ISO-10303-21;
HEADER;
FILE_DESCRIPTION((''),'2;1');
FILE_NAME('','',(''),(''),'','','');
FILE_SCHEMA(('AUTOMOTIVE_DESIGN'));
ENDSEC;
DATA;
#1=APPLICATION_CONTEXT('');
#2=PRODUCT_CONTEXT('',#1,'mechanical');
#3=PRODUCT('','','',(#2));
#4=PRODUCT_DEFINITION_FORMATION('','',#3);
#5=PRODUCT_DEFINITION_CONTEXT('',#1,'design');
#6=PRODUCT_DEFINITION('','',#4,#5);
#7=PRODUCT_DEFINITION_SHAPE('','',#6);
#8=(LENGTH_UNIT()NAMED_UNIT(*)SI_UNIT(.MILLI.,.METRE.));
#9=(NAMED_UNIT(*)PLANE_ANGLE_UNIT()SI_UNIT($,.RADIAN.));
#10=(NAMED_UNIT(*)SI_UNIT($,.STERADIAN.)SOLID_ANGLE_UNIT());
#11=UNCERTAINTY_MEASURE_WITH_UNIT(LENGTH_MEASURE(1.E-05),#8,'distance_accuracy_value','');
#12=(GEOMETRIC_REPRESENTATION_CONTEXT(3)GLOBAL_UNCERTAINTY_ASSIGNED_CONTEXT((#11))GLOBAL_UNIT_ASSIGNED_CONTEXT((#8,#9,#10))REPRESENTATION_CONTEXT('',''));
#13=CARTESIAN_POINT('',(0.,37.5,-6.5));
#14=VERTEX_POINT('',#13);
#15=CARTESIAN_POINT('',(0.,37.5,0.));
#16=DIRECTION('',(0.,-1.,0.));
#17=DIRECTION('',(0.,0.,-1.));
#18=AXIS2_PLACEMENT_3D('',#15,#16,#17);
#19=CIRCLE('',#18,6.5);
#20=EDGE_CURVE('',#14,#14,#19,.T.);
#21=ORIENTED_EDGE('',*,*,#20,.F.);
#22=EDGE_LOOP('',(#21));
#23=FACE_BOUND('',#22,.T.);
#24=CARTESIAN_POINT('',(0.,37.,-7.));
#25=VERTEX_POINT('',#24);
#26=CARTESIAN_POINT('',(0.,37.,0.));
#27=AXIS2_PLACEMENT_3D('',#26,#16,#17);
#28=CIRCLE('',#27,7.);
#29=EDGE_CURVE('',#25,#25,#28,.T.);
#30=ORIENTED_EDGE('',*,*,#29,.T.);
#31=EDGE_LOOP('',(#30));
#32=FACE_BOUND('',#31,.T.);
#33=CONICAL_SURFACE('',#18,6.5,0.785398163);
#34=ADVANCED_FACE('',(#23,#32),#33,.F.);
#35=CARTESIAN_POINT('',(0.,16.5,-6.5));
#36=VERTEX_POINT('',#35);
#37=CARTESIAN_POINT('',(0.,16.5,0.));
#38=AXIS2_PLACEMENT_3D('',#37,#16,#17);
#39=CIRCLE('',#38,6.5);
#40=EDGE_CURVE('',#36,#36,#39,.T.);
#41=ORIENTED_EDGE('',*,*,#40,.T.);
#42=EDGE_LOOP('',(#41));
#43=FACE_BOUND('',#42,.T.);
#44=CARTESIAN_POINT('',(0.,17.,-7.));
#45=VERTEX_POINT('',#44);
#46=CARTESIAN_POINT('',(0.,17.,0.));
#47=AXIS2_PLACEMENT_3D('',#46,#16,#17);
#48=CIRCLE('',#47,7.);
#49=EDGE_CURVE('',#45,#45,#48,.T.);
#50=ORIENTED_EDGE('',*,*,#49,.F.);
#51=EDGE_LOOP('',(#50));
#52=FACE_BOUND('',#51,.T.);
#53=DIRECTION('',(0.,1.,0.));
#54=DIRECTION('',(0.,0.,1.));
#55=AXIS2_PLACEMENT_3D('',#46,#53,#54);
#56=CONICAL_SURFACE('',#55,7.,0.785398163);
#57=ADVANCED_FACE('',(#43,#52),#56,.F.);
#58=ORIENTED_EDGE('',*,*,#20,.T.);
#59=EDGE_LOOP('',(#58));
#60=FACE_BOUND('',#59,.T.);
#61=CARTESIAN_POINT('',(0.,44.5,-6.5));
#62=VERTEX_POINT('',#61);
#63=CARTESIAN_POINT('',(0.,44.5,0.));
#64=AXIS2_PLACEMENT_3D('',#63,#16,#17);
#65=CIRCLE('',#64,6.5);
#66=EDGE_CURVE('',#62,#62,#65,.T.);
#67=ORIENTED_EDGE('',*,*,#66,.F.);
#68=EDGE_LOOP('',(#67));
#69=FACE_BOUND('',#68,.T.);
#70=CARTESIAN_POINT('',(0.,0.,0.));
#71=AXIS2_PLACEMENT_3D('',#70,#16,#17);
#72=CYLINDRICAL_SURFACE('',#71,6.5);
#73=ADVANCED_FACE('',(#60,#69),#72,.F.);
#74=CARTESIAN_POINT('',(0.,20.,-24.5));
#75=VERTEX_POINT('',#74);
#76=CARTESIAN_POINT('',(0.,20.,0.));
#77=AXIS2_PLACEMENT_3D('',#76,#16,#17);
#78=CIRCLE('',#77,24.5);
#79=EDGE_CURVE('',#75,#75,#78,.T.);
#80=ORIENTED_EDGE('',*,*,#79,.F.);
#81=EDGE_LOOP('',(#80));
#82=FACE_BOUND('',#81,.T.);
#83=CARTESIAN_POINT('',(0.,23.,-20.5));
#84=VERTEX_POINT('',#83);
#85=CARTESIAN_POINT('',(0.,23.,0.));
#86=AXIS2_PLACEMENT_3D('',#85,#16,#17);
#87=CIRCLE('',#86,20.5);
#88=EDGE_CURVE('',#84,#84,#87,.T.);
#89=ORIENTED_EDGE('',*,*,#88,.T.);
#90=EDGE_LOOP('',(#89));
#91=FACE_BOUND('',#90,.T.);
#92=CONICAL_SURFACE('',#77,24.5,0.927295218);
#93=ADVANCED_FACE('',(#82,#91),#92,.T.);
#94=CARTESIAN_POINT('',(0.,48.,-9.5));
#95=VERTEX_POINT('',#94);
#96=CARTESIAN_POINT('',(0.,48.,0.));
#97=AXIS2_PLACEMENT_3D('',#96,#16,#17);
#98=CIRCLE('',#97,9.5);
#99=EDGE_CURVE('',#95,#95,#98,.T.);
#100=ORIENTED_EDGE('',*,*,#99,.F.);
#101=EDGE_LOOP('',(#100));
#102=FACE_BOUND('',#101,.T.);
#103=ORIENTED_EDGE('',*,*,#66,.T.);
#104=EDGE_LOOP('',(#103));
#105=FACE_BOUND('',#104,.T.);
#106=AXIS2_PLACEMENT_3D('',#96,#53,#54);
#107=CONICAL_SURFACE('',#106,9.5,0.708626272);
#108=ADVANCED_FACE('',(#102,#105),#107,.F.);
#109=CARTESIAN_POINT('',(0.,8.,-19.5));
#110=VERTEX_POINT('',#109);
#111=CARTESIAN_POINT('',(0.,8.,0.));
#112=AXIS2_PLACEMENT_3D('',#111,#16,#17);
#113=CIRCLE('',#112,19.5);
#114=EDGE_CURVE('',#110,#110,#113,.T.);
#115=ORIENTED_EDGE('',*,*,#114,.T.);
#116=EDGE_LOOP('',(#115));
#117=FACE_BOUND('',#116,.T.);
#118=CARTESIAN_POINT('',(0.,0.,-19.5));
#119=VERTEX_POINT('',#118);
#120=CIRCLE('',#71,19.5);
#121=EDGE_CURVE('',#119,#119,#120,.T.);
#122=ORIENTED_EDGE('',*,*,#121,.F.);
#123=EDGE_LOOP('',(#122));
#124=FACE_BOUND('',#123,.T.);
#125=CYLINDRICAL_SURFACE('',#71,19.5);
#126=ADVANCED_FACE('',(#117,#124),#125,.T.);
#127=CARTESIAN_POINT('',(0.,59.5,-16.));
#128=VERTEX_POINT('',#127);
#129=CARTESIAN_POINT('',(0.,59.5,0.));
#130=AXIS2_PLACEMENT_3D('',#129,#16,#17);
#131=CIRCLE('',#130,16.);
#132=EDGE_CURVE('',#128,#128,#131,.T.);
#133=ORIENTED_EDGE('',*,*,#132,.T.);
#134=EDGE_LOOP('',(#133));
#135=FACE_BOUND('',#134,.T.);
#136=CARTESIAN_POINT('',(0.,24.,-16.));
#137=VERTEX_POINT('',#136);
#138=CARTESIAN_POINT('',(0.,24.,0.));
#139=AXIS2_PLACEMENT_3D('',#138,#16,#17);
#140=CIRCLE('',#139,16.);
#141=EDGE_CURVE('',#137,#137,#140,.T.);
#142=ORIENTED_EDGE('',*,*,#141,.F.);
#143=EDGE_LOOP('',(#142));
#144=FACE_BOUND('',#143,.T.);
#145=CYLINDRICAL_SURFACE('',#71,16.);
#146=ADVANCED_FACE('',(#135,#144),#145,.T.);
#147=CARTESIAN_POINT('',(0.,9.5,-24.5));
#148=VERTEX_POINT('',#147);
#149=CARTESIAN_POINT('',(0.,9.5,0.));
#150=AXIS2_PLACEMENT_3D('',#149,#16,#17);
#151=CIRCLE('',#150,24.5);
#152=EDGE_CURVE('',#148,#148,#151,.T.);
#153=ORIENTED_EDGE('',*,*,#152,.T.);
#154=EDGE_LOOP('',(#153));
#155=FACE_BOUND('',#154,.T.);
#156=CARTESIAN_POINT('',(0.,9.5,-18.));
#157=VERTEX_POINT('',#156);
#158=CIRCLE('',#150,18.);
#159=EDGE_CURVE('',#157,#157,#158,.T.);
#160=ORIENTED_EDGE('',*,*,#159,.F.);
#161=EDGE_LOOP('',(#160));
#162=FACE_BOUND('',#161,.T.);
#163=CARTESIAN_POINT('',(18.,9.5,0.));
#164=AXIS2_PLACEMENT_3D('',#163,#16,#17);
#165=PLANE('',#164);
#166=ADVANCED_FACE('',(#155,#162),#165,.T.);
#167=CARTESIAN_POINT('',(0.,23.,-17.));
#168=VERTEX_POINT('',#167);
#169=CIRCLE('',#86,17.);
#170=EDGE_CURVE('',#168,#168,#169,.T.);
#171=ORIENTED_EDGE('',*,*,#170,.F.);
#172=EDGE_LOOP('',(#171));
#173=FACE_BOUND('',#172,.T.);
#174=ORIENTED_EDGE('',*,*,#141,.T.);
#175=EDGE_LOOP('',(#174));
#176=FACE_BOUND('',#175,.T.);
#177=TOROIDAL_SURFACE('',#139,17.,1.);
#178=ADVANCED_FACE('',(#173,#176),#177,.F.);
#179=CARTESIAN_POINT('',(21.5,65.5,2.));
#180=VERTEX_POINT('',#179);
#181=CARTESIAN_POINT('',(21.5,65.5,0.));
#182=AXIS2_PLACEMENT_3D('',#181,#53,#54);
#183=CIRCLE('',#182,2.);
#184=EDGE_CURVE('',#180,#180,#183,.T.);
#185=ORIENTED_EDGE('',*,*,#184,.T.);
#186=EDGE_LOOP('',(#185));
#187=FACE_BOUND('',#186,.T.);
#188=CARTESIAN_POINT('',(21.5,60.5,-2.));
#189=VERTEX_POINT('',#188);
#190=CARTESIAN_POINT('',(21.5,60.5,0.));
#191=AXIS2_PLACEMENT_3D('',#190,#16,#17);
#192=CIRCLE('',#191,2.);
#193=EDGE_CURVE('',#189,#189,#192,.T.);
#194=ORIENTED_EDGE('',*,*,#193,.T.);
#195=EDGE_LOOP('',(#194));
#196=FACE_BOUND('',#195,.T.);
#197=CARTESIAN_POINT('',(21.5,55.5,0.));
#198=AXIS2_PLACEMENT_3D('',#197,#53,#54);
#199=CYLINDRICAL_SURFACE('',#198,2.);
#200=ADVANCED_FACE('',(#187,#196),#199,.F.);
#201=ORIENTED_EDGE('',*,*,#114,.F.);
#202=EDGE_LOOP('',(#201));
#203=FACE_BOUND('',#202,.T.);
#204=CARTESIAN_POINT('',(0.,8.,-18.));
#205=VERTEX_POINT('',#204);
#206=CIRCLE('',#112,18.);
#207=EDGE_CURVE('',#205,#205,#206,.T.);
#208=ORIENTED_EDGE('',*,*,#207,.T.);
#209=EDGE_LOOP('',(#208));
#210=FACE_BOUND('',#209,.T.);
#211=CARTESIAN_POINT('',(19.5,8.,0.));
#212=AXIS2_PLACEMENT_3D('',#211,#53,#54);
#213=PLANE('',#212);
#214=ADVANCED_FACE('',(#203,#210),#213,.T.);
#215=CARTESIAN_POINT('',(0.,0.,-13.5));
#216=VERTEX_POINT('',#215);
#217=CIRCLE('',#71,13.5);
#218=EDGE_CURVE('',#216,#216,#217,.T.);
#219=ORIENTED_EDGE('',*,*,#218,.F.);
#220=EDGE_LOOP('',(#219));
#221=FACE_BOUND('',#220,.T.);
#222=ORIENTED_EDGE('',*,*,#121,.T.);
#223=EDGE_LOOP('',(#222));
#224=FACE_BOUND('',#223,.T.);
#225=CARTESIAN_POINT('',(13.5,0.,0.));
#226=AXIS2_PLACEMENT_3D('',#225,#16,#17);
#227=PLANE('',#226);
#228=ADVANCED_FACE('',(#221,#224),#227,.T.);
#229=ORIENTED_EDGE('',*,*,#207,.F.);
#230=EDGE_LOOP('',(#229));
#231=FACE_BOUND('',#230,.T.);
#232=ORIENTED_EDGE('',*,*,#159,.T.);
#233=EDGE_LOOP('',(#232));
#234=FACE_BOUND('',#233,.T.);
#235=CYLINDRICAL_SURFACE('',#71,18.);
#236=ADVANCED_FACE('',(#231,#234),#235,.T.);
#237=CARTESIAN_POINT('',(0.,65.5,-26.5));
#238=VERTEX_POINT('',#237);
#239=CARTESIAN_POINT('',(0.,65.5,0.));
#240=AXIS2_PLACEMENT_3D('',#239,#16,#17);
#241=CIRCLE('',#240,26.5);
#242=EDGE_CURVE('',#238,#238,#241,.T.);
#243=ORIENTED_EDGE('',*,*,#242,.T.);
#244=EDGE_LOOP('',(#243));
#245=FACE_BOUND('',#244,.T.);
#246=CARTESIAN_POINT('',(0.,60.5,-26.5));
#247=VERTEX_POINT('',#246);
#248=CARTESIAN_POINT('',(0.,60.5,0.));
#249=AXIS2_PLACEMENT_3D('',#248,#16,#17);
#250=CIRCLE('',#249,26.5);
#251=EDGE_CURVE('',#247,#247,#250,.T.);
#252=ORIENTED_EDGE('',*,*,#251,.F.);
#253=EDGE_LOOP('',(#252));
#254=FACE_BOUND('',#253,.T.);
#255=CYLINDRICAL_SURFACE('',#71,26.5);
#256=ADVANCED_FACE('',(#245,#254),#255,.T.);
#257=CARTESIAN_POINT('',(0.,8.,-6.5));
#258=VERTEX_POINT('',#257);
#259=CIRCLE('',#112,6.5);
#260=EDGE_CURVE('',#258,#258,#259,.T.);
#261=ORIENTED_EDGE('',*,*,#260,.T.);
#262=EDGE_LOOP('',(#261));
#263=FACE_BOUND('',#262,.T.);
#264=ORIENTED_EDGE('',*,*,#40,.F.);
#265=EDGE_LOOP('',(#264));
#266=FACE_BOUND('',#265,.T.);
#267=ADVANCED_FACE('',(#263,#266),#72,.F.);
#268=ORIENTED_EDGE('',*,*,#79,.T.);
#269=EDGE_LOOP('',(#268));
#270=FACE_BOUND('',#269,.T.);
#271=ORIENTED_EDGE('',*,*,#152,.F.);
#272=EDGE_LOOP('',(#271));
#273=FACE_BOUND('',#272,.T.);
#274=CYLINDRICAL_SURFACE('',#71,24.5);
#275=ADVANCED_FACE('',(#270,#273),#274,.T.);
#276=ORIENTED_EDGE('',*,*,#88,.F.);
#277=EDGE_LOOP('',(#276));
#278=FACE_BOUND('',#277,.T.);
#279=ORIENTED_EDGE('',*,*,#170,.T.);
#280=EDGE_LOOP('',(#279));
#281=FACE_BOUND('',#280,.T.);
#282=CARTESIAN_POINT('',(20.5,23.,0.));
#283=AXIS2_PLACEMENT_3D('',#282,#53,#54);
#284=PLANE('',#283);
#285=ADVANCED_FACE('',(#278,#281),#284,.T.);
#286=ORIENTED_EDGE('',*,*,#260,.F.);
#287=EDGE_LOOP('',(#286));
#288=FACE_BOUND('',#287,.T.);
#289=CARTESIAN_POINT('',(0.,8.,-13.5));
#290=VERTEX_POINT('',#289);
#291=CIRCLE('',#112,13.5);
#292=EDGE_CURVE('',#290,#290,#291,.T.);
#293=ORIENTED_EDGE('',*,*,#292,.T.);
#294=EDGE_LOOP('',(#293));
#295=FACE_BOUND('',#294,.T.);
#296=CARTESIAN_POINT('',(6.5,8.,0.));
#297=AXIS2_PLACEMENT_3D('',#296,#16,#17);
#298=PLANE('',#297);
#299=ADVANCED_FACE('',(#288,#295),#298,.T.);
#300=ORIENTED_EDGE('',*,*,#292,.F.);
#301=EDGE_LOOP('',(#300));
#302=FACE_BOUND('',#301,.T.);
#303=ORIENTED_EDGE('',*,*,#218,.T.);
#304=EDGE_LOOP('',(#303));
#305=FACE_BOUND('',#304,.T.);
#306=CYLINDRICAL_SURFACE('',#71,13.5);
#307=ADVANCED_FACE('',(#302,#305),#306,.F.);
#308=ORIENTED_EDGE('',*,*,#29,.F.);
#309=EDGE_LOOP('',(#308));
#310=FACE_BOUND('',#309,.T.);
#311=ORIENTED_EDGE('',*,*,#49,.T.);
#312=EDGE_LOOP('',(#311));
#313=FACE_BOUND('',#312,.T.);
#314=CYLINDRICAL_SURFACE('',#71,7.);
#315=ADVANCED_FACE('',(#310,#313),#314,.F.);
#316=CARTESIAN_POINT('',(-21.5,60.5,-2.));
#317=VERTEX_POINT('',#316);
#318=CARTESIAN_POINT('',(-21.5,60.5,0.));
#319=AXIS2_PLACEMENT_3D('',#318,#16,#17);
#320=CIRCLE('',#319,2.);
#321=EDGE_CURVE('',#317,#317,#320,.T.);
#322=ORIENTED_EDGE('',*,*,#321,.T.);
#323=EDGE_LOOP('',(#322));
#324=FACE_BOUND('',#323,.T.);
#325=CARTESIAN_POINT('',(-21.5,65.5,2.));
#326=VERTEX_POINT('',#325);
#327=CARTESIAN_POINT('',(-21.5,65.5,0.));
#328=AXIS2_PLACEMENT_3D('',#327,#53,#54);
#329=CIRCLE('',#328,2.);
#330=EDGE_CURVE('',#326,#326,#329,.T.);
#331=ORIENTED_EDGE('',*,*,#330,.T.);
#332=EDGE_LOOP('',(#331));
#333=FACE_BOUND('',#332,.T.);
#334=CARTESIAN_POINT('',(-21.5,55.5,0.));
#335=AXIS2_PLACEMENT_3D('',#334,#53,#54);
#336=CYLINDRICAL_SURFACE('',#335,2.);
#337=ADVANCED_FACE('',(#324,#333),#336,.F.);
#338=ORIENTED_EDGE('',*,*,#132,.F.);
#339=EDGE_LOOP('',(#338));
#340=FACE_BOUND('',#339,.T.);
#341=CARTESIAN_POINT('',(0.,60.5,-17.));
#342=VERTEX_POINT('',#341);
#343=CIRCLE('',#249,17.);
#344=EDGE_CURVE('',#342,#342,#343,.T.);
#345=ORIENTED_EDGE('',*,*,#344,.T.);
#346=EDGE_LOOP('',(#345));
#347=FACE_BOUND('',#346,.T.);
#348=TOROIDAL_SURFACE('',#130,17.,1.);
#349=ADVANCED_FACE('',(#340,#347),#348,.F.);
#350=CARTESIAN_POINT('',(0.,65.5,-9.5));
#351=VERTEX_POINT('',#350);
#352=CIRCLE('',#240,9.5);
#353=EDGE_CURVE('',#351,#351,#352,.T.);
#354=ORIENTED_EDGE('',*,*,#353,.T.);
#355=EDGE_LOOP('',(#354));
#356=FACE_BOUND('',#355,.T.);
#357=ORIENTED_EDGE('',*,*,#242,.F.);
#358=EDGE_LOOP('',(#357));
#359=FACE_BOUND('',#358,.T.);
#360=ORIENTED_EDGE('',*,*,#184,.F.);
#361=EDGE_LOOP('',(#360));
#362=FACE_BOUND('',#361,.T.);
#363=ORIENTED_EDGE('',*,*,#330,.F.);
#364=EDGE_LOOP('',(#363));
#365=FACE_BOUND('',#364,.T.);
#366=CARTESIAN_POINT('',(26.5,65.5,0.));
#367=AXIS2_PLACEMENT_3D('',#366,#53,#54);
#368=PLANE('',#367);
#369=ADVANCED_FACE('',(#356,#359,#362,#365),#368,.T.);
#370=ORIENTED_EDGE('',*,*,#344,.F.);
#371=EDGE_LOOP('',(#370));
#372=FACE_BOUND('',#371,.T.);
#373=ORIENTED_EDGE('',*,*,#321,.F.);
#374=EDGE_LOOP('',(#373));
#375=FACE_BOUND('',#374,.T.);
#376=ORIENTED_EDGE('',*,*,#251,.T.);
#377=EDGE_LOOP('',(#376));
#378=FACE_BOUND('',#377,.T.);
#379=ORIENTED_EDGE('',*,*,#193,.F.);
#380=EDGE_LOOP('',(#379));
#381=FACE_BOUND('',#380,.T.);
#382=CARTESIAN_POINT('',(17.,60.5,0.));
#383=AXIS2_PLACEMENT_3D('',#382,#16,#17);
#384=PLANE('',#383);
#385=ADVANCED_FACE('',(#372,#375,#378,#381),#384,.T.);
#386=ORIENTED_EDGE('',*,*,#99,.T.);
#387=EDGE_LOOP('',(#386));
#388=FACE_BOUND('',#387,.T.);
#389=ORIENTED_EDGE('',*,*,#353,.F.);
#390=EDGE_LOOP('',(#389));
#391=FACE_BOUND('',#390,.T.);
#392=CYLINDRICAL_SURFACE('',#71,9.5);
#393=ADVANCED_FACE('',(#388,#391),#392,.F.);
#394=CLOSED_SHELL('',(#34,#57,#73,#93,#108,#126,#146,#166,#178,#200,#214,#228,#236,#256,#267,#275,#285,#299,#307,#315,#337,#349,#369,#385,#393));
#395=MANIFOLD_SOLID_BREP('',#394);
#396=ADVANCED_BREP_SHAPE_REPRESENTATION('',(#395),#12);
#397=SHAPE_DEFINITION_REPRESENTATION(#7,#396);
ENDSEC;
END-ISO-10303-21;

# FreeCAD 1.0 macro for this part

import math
import FreeCAD as App
import Part
import Sketcher
from FreeCAD import Vector
Q = App.Units.Quantity

doc = App.newDocument("Part")
body = doc.addObject("PartDesign::Body", "Body")

sketch1 = body.newObject("Sketcher::SketchObject", "Sketch")
sketch1.AttachmentSupport = (doc.getObject("XY_Plane"), [""])
sketch1.MapMode = "FlatFace"
sketch1.addGeometry(Part.LineSegment(Vector(13.5, 0, 0), Vector(19.5, 0, 0)), False)
sketch1.addGeometry(Part.LineSegment(Vector(19.5, 0, 0), Vector(19.5, 8, 0)), False)
sketch1.addGeometry(Part.LineSegment(Vector(19.5, 8, 0), Vector(18, 8, 0)), False)
sketch1.addGeometry(Part.LineSegment(Vector(18, 8, 0), Vector(18, 9.5, 0)), False)
sketch1.addGeometry(Part.LineSegment(Vector(18, 9.5, 0), Vector(24.5, 9.5, 0)), False)
sketch1.addGeometry(Part.LineSegment(Vector(24.5, 9.5, 0), Vector(24.5, 20, 0)), False)
sketch1.addGeometry(Part.LineSegment(Vector(24.5, 20, 0), Vector(20.5, 23, 0)), False)
sketch1.addGeometry(Part.LineSegment(Vector(20.5, 23, 0), Vector(17, 23, 0)), False)
sketch1.addGeometry(Part.ArcOfCircle(Part.Circle(Vector(17, 24, 0), Vector(0, 0, 1), 1), math.radians(-180), math.radians(-90)), False)
sketch1.addGeometry(Part.LineSegment(Vector(16, 24, 0), Vector(16, 59.5, 0)), False)
sketch1.addGeometry(Part.ArcOfCircle(Part.Circle(Vector(17, 59.5, 0), Vector(0, 0, 1), 1), math.radians(90), math.radians(180)), False)
sketch1.addGeometry(Part.LineSegment(Vector(17, 60.5, 0), Vector(26.5, 60.5, 0)), False)
sketch1.addGeometry(Part.LineSegment(Vector(26.5, 60.5, 0), Vector(26.5, 65.5, 0)), False)
sketch1.addGeometry(Part.LineSegment(Vector(26.5, 65.5, 0), Vector(9.5, 65.5, 0)), False)
sketch1.addGeometry(Part.LineSegment(Vector(9.5, 65.5, 0), Vector(9.5, 48, 0)), False)
sketch1.addGeometry(Part.LineSegment(Vector(9.5, 48, 0), Vector(6.5, 44.5, 0)), False)
sketch1.addGeometry(Part.LineSegment(Vector(6.5, 44.5, 0), Vector(6.5, 37.5, 0)), False)
sketch1.addGeometry(Part.LineSegment(Vector(6.5, 37.5, 0), Vector(7, 37, 0)), False)
sketch1.addGeometry(Part.LineSegment(Vector(7, 37, 0), Vector(7, 17, 0)), False)
sketch1.addGeometry(Part.LineSegment(Vector(7, 17, 0), Vector(6.5, 16.5, 0)), False)
sketch1.addGeometry(Part.LineSegment(Vector(6.5, 16.5, 0), Vector(6.5, 8, 0)), False)
sketch1.addGeometry(Part.LineSegment(Vector(6.5, 8, 0), Vector(13.5, 8, 0)), False)
sketch1.addGeometry(Part.LineSegment(Vector(13.5, 8, 0), Vector(13.5, 0, 0)), False)
sketch1.addConstraint(Sketcher.Constraint("Coincident", 0, 2, 1, 1))
sketch1.addConstraint(Sketcher.Constraint("Coincident", 1, 2, 2, 1))
sketch1.addConstraint(Sketcher.Constraint("Coincident", 2, 2, 3, 1))
sketch1.addConstraint(Sketcher.Constraint("Coincident", 3, 2, 4, 1))
sketch1.addConstraint(Sketcher.Constraint("Coincident", 4, 2, 5, 1))
sketch1.addConstraint(Sketcher.Constraint("Coincident", 5, 2, 6, 1))
sketch1.addConstraint(Sketcher.Constraint("Coincident", 6, 2, 7, 1))
sketch1.addConstraint(Sketcher.Constraint("Tangent", 7, 2, 8, 2))
sketch1.addConstraint(Sketcher.Constraint("Tangent", 8, 1, 9, 1))
sketch1.addConstraint(Sketcher.Constraint("Tangent", 9, 2, 10, 2))
sketch1.addConstraint(Sketcher.Constraint("Tangent", 10, 1, 11, 1))
sketch1.addConstraint(Sketcher.Constraint("Coincident", 11, 2, 12, 1))
sketch1.addConstraint(Sketcher.Constraint("Coincident", 12, 2, 13, 1))
sketch1.addConstraint(Sketcher.Constraint("Coincident", 13, 2, 14, 1))
sketch1.addConstraint(Sketcher.Constraint("Coincident", 14, 2, 15, 1))
sketch1.addConstraint(Sketcher.Constraint("Coincident", 15, 2, 16, 1))
sketch1.addConstraint(Sketcher.Constraint("Coincident", 16, 2, 17, 1))
sketch1.addConstraint(Sketcher.Constraint("Coincident", 17, 2, 18, 1))
sketch1.addConstraint(Sketcher.Constraint("Coincident", 18, 2, 19, 1))
sketch1.addConstraint(Sketcher.Constraint("Coincident", 19, 2, 20, 1))
sketch1.addConstraint(Sketcher.Constraint("Coincident", 20, 2, 21, 1))
sketch1.addConstraint(Sketcher.Constraint("Coincident", 21, 2, 22, 1))
sketch1.addConstraint(Sketcher.Constraint("Coincident", 22, 2, 0, 1))
sketch1.addConstraint(Sketcher.Constraint("Horizontal", 0))
sketch1.addConstraint(Sketcher.Constraint("Vertical", 1))
sketch1.addConstraint(Sketcher.Constraint("Horizontal", 2))
sketch1.addConstraint(Sketcher.Constraint("Vertical", 3))
sketch1.addConstraint(Sketcher.Constraint("Horizontal", 4))
sketch1.addConstraint(Sketcher.Constraint("Vertical", 5))
sketch1.addConstraint(Sketcher.Constraint("Horizontal", 7))
sketch1.addConstraint(Sketcher.Constraint("Vertical", 9))
sketch1.addConstraint(Sketcher.Constraint("Horizontal", 11))
sketch1.addConstraint(Sketcher.Constraint("Vertical", 12))
sketch1.addConstraint(Sketcher.Constraint("Horizontal", 13))
sketch1.addConstraint(Sketcher.Constraint("Vertical", 14))
sketch1.addConstraint(Sketcher.Constraint("Vertical", 16))
sketch1.addConstraint(Sketcher.Constraint("Vertical", 18))
sketch1.addConstraint(Sketcher.Constraint("Vertical", 20))
sketch1.addConstraint(Sketcher.Constraint("Horizontal", 21))
sketch1.addConstraint(Sketcher.Constraint("Vertical", 22))
sketch1.addConstraint(Sketcher.Constraint("Equal", 8, 10))
sketch1.addConstraint(Sketcher.Constraint("PointOnObject", 0, 2, -1))
sketch1.addConstraint(Sketcher.Constraint("Perpendicular", 17, 19))
sketch1.addConstraint(Sketcher.Constraint("Horizontal", 2, 2, 20, 2))
sketch1.addConstraint(Sketcher.Constraint("Vertical", 16, 2, 19, 2))
sketch1.addConstraint(Sketcher.Constraint("Equal", 2, 3))
sketch1.addConstraint(Sketcher.Constraint("Equal", 21, 16))
sketch1.addConstraint(Sketcher.Constraint("Equal", 17, 19))
sketch1.addConstraint(Sketcher.Constraint("Radius", 8, Q("1 mm")))
sketch1.addConstraint(Sketcher.Constraint("DistanceX", 0, 1, 0, 2, Q("6 mm")))
sketch1.addConstraint(Sketcher.Constraint("DistanceX", 13, 2, 13, 1, Q("17 mm")))
sketch1.addConstraint(Sketcher.Constraint("DistanceX", 21, 1, 21, 2, Q("7 mm")))
sketch1.addConstraint(Sketcher.Constraint("DistanceY", 1, 1, 1, 2, Q("8 mm")))
sketch1.addConstraint(Sketcher.Constraint("DistanceY", 12, 1, 12, 2, Q("5 mm")))
sketch1.addConstraint(Sketcher.Constraint("DistanceY", 18, 2, 18, 1, Q("20 mm")))
sketch1.addConstraint(Sketcher.Constraint("Distance", 6, Q("5 mm")))
sketch1.addConstraint(Sketcher.Constraint("DistanceX", 2, 2, 2, 1, Q("1.5 mm")))
sketch1.addConstraint(Sketcher.Constraint("DistanceX", 4, 1, 4, 2, Q("6.5 mm")))
sketch1.addConstraint(Sketcher.Constraint("DistanceX", 7, 2, 7, 1, Q("3.5 mm")))
sketch1.addConstraint(Sketcher.Constraint("DistanceX", 11, 1, 11, 2, Q("9.5 mm")))
sketch1.addConstraint(Sketcher.Constraint("DistanceY", 5, 1, 5, 2, Q("10.5 mm")))
sketch1.addConstraint(Sketcher.Constraint("DistanceY", 9, 1, 9, 2, Q("35.5 mm")))
sketch1.addConstraint(Sketcher.Constraint("DistanceY", 14, 2, 14, 1, Q("17.5 mm")))
sketch1.addConstraint(Sketcher.Constraint("DistanceY", 20, 2, 20, 1, Q("8.5 mm")))
sketch1.addConstraint(Sketcher.Constraint("DistanceX", -1, 1, 8, 3, Q("17 mm")))
sketch1.addConstraint(Sketcher.Constraint("DistanceY", -1, 1, 8, 3, Q("24 mm")))
sketch1.addConstraint(Sketcher.Constraint("DistanceX", -1, 1, 17, 2, Q("7 mm")))
revolution = body.newObject("PartDesign::Revolution", "Revolution")
revolution.Profile = sketch1
revolution.ReferenceAxis = (sketch1, ["V_Axis"])
revolution.Angle = 360

sketch2 = body.newObject("Sketcher::SketchObject", "Sketch001")
sketch2.AttachmentSupport = (doc.getObject("XZ_Plane"), [""])
sketch2.MapMode = "FlatFace"
sketch2.AttachmentOffset = App.Placement(Vector(0, 0, -65.5), App.Rotation())
sketch2.addGeometry(Part.Circle(Vector(21.5, 0, 0), Vector(0, 0, 1), 2), False)
sketch2.addGeometry(Part.Circle(Vector(-21.5, 0, 0), Vector(0, 0, 1), 2), False)
sketch2.addConstraint(Sketcher.Constraint("Equal", 0, 1))
sketch2.addConstraint(Sketcher.Constraint("Symmetric", 0, 3, 1, 3, -1, 1))
sketch2.addConstraint(Sketcher.Constraint("PointOnObject", 0, 3, -1))
sketch2.addConstraint(Sketcher.Constraint("Diameter", 0, Q("4 mm")))
sketch2.addConstraint(Sketcher.Constraint("DistanceX", 1, 3, 0, 3, Q("43 mm")))
pocket1 = body.newObject("PartDesign::Pocket", "Pocket")
pocket1.Profile = sketch2
pocket1.Length = 10
pocket1.Reversed = True

doc.recompute()
